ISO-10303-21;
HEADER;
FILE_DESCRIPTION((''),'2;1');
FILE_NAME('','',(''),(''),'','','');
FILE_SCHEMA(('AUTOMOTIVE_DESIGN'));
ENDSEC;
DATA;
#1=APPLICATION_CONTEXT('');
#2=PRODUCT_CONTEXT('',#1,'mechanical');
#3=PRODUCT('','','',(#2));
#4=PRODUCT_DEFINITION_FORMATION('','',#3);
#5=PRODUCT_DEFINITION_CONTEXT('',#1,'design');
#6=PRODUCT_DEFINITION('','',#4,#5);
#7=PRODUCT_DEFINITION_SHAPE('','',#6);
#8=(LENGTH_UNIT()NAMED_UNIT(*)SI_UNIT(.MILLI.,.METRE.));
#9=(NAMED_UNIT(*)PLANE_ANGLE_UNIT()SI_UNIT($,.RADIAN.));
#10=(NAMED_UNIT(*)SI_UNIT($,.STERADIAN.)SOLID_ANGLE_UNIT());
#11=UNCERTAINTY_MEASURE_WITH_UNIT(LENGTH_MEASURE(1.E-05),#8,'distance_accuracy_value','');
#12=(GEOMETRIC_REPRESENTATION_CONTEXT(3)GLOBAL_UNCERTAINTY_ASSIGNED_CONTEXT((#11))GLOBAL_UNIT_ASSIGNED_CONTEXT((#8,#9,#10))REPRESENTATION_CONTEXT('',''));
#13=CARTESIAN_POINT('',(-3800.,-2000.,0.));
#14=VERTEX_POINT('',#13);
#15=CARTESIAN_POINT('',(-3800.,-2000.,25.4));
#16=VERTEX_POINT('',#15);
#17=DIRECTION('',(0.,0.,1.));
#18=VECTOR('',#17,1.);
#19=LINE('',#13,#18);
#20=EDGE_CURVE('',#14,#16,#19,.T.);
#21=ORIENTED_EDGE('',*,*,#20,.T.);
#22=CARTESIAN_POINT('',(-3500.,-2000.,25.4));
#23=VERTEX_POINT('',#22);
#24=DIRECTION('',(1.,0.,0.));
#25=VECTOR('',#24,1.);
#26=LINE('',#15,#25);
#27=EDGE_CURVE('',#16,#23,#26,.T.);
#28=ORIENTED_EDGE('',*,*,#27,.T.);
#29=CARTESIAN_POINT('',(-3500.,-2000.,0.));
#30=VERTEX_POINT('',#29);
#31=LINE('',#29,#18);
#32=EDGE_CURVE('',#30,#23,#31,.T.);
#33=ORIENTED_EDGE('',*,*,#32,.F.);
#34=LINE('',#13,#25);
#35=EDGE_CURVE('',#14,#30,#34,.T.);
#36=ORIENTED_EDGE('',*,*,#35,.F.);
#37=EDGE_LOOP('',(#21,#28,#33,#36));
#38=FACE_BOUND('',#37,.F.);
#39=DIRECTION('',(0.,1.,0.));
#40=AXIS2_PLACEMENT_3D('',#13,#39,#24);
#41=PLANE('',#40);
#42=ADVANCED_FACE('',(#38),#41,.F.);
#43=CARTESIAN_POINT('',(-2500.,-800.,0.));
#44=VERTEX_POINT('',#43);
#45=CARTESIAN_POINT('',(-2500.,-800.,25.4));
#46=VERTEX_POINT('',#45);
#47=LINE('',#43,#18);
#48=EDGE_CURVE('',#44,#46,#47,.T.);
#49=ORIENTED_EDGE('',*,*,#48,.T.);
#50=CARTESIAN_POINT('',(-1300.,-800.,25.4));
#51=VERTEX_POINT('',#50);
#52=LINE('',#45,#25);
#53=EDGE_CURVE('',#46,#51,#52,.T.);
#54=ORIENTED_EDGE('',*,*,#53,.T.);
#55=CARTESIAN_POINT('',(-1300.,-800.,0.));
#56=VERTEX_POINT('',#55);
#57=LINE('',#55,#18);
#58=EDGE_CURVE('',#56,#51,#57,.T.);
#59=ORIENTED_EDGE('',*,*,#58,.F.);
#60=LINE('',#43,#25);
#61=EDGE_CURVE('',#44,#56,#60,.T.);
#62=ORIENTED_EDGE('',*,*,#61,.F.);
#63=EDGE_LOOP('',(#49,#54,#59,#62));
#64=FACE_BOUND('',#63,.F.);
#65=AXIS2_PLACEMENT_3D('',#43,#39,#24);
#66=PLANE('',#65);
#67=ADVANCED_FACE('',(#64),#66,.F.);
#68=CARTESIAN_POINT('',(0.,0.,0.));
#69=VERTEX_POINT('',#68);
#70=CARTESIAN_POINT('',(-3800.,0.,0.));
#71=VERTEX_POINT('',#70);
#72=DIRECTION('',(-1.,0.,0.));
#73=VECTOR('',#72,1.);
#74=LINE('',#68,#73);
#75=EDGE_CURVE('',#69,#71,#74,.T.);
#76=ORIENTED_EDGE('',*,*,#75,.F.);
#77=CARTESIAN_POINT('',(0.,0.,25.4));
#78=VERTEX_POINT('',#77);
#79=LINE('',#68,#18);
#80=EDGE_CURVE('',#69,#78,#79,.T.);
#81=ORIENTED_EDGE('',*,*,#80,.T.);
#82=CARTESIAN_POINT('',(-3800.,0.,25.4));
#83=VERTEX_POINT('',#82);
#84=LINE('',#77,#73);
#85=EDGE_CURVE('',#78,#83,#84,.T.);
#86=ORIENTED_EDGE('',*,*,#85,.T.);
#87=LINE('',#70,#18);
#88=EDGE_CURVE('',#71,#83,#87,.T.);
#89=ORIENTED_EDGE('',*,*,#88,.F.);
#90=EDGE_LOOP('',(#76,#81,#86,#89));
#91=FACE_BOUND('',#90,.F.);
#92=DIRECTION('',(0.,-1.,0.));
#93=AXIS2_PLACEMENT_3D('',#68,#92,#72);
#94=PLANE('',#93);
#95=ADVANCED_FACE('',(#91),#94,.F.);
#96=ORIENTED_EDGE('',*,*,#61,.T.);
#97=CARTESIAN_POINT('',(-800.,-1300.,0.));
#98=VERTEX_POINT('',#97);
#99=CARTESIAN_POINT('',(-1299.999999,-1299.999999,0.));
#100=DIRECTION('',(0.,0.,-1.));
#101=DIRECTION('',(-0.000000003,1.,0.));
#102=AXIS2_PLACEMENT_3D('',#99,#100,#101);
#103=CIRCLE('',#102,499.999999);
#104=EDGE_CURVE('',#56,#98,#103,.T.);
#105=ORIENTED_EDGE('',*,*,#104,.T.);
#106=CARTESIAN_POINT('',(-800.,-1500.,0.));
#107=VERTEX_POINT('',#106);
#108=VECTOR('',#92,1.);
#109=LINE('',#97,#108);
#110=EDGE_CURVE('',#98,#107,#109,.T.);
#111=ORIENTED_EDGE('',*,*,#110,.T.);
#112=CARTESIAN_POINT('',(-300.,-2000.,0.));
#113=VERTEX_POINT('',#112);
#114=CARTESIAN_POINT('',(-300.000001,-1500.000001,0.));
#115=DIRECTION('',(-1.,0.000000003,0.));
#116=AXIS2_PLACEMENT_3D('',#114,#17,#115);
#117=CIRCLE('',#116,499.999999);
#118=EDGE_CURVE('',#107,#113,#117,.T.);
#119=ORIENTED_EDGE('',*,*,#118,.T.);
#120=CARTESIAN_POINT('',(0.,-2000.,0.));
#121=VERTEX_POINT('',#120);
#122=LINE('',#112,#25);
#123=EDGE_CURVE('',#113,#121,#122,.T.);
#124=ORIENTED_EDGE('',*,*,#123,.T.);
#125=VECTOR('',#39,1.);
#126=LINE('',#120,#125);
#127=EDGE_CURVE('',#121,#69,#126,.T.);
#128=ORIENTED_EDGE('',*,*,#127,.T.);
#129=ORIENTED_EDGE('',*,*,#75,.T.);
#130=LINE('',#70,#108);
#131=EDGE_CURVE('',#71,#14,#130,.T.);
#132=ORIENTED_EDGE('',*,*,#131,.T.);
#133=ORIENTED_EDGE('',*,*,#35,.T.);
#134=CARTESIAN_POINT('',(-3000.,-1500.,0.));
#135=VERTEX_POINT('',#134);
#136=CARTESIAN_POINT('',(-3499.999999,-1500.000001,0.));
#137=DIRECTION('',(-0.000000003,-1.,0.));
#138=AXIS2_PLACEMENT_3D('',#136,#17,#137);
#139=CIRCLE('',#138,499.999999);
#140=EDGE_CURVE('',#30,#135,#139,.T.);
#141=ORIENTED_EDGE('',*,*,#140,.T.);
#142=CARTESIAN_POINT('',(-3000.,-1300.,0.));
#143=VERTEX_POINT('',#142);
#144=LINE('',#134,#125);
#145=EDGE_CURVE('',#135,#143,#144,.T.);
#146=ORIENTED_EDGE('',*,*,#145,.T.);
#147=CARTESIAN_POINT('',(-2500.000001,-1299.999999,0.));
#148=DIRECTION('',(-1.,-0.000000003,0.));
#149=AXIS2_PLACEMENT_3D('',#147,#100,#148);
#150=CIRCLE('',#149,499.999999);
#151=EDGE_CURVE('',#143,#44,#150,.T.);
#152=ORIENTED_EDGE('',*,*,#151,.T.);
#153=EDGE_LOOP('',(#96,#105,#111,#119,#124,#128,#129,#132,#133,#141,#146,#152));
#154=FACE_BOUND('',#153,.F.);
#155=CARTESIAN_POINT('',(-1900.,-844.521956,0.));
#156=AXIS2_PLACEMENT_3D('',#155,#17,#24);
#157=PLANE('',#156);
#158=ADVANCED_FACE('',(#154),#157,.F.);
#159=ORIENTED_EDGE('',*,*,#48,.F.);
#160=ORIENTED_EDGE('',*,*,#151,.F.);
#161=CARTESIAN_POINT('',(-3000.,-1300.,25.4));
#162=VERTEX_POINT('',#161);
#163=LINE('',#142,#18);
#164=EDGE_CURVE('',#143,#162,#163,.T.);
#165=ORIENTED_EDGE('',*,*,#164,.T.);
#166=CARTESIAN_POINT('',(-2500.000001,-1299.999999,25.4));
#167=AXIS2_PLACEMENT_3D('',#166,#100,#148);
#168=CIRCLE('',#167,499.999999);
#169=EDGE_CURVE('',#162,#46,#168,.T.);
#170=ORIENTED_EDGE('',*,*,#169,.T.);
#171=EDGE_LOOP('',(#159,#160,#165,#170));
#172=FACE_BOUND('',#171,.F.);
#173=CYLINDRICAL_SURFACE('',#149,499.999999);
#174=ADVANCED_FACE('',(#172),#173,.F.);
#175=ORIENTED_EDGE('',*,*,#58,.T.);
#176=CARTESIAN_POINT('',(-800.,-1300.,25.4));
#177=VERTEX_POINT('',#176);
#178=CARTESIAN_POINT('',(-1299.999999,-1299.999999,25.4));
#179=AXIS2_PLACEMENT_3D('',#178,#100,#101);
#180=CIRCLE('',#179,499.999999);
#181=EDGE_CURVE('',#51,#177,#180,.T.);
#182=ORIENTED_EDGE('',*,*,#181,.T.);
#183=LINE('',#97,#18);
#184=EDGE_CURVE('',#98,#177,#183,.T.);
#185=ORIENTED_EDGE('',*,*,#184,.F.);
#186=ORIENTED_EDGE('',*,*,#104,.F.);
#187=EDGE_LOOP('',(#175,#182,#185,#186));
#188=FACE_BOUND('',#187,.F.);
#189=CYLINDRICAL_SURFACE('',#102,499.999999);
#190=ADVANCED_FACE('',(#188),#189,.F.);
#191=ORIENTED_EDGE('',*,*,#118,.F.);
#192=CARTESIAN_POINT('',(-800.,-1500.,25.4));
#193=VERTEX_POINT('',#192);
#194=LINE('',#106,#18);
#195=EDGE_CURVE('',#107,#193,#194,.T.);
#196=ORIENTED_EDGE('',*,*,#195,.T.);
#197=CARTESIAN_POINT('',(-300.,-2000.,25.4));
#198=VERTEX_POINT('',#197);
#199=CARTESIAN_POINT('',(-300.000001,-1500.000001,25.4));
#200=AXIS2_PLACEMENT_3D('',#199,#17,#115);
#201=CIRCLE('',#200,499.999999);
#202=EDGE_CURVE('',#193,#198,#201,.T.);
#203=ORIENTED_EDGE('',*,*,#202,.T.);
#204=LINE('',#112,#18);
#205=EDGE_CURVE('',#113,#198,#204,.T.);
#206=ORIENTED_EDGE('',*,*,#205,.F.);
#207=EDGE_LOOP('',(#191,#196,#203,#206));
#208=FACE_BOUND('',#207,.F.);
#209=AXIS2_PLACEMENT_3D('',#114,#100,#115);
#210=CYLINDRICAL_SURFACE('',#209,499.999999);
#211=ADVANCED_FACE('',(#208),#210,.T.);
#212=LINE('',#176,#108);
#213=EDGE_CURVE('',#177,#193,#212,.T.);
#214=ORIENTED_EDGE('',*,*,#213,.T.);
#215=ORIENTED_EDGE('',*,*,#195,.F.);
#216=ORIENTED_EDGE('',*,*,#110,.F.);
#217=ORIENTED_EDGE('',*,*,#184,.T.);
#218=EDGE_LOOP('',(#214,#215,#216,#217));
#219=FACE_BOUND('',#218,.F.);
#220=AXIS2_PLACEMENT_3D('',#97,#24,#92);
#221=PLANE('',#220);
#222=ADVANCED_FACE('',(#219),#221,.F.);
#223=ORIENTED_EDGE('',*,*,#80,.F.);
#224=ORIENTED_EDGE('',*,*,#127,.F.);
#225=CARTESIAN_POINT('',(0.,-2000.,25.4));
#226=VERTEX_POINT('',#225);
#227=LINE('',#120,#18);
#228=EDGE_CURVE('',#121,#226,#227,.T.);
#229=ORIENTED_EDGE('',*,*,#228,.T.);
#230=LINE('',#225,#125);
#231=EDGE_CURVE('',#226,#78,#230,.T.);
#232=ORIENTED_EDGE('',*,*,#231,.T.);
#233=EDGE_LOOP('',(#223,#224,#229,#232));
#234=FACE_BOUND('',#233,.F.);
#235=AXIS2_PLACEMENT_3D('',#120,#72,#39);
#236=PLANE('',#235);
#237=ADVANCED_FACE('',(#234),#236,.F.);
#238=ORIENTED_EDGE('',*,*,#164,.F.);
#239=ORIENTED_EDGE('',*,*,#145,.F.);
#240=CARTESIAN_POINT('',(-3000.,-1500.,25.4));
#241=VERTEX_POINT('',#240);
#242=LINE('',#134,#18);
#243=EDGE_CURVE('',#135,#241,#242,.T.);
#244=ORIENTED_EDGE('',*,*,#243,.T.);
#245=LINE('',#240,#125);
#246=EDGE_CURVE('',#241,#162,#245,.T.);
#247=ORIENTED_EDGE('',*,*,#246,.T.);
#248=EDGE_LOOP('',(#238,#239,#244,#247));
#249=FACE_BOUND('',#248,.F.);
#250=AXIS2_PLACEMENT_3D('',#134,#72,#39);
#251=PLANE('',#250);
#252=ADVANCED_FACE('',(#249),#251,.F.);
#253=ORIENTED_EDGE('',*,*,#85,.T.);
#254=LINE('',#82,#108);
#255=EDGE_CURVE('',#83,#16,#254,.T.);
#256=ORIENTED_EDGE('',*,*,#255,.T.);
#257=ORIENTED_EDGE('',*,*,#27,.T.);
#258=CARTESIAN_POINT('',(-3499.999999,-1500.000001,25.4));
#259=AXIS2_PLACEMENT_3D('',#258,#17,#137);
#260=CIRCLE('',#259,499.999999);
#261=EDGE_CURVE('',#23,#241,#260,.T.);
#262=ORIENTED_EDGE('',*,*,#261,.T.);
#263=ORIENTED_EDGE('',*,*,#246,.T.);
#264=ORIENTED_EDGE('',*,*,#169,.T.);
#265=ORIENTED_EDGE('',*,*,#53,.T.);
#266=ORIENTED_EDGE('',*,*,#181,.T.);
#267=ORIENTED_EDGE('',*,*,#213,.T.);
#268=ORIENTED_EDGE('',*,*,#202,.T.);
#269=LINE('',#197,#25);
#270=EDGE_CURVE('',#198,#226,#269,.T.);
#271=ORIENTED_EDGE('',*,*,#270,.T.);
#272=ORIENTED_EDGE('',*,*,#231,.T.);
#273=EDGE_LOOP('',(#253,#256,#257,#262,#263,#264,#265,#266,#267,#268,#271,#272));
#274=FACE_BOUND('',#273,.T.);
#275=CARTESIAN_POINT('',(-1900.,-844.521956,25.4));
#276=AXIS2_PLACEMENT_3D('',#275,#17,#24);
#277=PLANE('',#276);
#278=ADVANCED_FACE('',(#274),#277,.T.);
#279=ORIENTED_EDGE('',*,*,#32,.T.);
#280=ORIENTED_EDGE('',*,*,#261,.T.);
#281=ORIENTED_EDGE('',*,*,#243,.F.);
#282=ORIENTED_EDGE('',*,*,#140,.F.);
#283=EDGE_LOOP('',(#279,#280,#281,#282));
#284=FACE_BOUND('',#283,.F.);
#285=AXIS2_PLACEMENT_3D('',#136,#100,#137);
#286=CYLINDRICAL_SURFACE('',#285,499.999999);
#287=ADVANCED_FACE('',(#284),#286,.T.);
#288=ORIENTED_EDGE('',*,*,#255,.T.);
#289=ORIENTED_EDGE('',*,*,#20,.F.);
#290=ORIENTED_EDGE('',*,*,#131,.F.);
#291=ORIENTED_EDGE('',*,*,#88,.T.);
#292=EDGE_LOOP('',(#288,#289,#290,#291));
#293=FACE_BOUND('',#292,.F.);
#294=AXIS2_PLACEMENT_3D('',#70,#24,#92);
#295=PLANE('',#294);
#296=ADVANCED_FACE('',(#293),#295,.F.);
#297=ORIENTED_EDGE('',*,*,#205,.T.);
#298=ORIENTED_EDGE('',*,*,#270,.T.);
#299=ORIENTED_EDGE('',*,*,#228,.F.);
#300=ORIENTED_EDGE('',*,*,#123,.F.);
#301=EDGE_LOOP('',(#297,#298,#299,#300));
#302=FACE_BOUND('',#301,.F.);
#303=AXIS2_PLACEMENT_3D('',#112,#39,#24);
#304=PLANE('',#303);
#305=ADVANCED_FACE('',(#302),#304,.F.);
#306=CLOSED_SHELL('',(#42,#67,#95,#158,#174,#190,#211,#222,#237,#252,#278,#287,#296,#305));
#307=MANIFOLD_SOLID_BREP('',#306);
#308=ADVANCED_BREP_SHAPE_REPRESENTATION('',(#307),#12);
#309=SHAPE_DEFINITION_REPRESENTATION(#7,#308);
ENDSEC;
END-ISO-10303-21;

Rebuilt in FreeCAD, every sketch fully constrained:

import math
import FreeCAD as App
import Part
import Sketcher

V = App.Vector
Q = App.Units.Quantity

doc = App.newDocument("Part")
body = doc.addObject("PartDesign::Body", "Body")

# Sketch on XY plane
sketch1 = doc.addObject("Sketcher::SketchObject", "Sketch")
body.addObject(sketch1)
sketch1.AttachmentSupport = (doc.XY_Plane, [""])
sketch1.MapMode = "FlatFace"
sketch1.addGeometry(Part.LineSegment(V(0, -2000, 0), V(0, 0, 0)), False)
sketch1.addGeometry(Part.LineSegment(V(0, 0, 0), V(-3800, 0, 0)), False)
sketch1.addGeometry(Part.LineSegment(V(-3800, 0, 0), V(-3800, -2000, 0)), False)
sketch1.addGeometry(Part.LineSegment(V(-3800, -2000, 0), V(-3500, -2000, 0)), False)
sketch1.addGeometry(Part.ArcOfCircle(Part.Circle(V(-3499.999999, -1500.000001, 0), V(0, 0, 1), 499.999999), math.radians(-90), math.radians(0)), False)
sketch1.addGeometry(Part.LineSegment(V(-3000, -1500, 0), V(-3000, -1300, 0)), False)
sketch1.addGeometry(Part.ArcOfCircle(Part.Circle(V(-2500.000001, -1299.999999, 0), V(0, 0, 1), 499.999999), math.radians(90), math.radians(180)), False)
sketch1.addGeometry(Part.LineSegment(V(-2500, -800, 0), V(-1300, -800, 0)), False)
sketch1.addGeometry(Part.ArcOfCircle(Part.Circle(V(-1299.999999, -1299.999999, 0), V(0, 0, 1), 499.999999), math.radians(0), math.radians(90)), False)
sketch1.addGeometry(Part.LineSegment(V(-800, -1300, 0), V(-800, -1500, 0)), False)
sketch1.addGeometry(Part.ArcOfCircle(Part.Circle(V(-300.000001, -1500.000001, 0), V(0, 0, 1), 499.999999), math.radians(180), math.radians(270)), False)
sketch1.addGeometry(Part.LineSegment(V(-300, -2000, 0), V(0, -2000, 0)), False)
sketch1.addConstraint(Sketcher.Constraint("Coincident", 0, 2, 1, 1))
sketch1.addConstraint(Sketcher.Constraint("Coincident", 1, 2, 2, 1))
sketch1.addConstraint(Sketcher.Constraint("Coincident", 2, 2, 3, 1))
sketch1.addConstraint(Sketcher.Constraint("Tangent", 3, 2, 4, 1))
sketch1.addConstraint(Sketcher.Constraint("Tangent", 4, 2, 5, 1))
sketch1.addConstraint(Sketcher.Constraint("Tangent", 5, 2, 6, 2))
sketch1.addConstraint(Sketcher.Constraint("Tangent", 6, 1, 7, 1))
sketch1.addConstraint(Sketcher.Constraint("Tangent", 7, 2, 8, 2))
sketch1.addConstraint(Sketcher.Constraint("Tangent", 8, 1, 9, 1))
sketch1.addConstraint(Sketcher.Constraint("Tangent", 9, 2, 10, 1))
sketch1.addConstraint(Sketcher.Constraint("Tangent", 10, 2, 11, 1))
sketch1.addConstraint(Sketcher.Constraint("Coincident", 11, 2, 0, 1))
sketch1.addConstraint(Sketcher.Constraint("Vertical", 0))
sketch1.addConstraint(Sketcher.Constraint("Horizontal", 1))
sketch1.addConstraint(Sketcher.Constraint("Vertical", 2))
sketch1.addConstraint(Sketcher.Constraint("Horizontal", 3))
sketch1.addConstraint(Sketcher.Constraint("Vertical", 5))
sketch1.addConstraint(Sketcher.Constraint("Horizontal", 7))
sketch1.addConstraint(Sketcher.Constraint("Vertical", 9))
sketch1.addConstraint(Sketcher.Constraint("Horizontal", 11))
sketch1.addConstraint(Sketcher.Constraint("Coincident", 0, 2, -1, 1))
sketch1.addConstraint(Sketcher.Constraint("Equal", 4, 6))
sketch1.addConstraint(Sketcher.Constraint("Equal", 6, 8))
sketch1.addConstraint(Sketcher.Constraint("Equal", 8, 10))
sketch1.addConstraint(Sketcher.Constraint("Horizontal", 4, 3, 10, 3))
sketch1.addConstraint(Sketcher.Constraint("Equal", 3, 11))
sketch1.addConstraint(Sketcher.Constraint("Radius", 4, Q("499.999999 mm")))
sketch1.addConstraint(Sketcher.Constraint("DistanceX", 1, 2, 1, 1, Q("3800 mm")))
sketch1.addConstraint(Sketcher.Constraint("DistanceX", 3, 1, 3, 2, Q("300 mm")))
sketch1.addConstraint(Sketcher.Constraint("DistanceY", 0, 1, 0, 2, Q("2000 mm")))
sketch1.addConstraint(Sketcher.Constraint("DistanceY", 5, 1, 5, 2, Q("200 mm")))
pad1 = doc.addObject("PartDesign::Pad", "Pad")
body.addObject(pad1)
pad1.Profile = sketch1
pad1.Length = 25.4

doc.recompute()
